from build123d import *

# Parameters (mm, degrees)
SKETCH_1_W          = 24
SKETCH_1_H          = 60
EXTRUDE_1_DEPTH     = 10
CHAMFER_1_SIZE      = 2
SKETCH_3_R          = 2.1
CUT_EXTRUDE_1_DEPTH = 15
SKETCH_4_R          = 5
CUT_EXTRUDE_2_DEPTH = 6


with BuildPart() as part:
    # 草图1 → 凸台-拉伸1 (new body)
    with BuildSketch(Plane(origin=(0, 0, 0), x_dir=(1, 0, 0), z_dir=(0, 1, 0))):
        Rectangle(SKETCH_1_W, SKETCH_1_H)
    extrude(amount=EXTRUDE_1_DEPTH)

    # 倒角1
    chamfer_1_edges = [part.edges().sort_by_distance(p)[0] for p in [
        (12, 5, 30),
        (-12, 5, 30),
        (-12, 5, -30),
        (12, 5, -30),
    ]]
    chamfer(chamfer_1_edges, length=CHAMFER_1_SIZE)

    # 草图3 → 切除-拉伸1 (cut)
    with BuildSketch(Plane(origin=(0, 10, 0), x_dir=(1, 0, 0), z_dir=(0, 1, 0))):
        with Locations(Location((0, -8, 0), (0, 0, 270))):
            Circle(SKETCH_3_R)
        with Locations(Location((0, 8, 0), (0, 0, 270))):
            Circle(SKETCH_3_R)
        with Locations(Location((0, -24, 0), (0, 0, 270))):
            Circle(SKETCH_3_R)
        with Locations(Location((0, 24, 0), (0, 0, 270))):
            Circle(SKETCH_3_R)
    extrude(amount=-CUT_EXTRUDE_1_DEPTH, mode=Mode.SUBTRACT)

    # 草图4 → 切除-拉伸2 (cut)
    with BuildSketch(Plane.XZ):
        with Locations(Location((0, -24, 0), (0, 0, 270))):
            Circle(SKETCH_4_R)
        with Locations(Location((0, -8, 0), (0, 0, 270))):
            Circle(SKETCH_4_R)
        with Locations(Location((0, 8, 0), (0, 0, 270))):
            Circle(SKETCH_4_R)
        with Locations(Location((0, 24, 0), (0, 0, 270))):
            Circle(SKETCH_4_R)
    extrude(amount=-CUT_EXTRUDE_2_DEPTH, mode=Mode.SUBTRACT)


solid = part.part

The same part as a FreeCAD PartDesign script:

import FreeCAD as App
import Part
import Sketcher

V = App.Vector


def edges_at(feature, points):
    """Names of the edges that pass closest to the given points."""
    edges = feature.Shape.Edges
    near = lambda p: min(range(len(edges)), key=lambda i: edges[i].distToShape(Part.Vertex(*p))[0])
    return sorted({f"Edge{near(p) + 1}" for p in points})


def add_polygon(sketch, points):
    """Adds a closed chain of lines whose ends are joined by coincident constraints."""
    first, n = sketch.GeometryCount, len(points)
    for a, b in zip(points, points[1:] + points[:1]):
        sketch.addGeometry(Part.LineSegment(App.Vector(*a, 0), App.Vector(*b, 0)), False)
    for i in range(n):
        sketch.addConstraint(Sketcher.Constraint("Coincident", first + i, 2, first + (i + 1) % n, 1))

doc = App.newDocument("Part")
body = doc.addObject("PartDesign::Body", "Body")

sketch1 = body.newObject("Sketcher::SketchObject", "Sketch")
sketch1.AttachmentSupport = (doc.getObject("XZ_Plane"), [""])
sketch1.MapMode = "FlatFace"
add_polygon(sketch1, [(-12, -30), (-12, 30), (12, 30), (12, -30)])
sketch1.addConstraint([
    Sketcher.Constraint("Vertical", 0),
    Sketcher.Constraint("Horizontal", 1),
    Sketcher.Constraint("Vertical", 2),
    Sketcher.Constraint("Horizontal", 3),
    Sketcher.Constraint("Symmetric", 0, 2, 2, 2, -1, 1),
    Sketcher.Constraint("DistanceX", 1, 1, 1, 2, 24.0),
    Sketcher.Constraint("DistanceY", 0, 1, 0, 2, 60.0),
])
pad1 = body.newObject("PartDesign::Pad", "Pad")
pad1.Profile = sketch1
pad1.Length = 10
pad1.Reversed = True
doc.recompute()

chamfer = body.newObject("PartDesign::Chamfer", "Chamfer")
chamfer.Base = (pad1, edges_at(pad1, [
    (12, 5, 30),
    (-12, 5, 30),
    (-12, 5, -30),
    (12, 5, -30),
]))
chamfer.Size = 2

sketch2 = body.newObject("Sketcher::SketchObject", "Sketch001")
sketch2.AttachmentSupport = (doc.getObject("XZ_Plane"), [""])
sketch2.MapMode = "FlatFace"
sketch2.AttachmentOffset = App.Placement(V(0, 0, -10), App.Rotation())
sketch2.addGeometry([
    Part.Circle(V(0, 8, 0), V(0, 0, 1), 2.1),
    Part.Circle(V(0, -8, 0), V(0, 0, 1), 2.1),
    Part.Circle(V(0, 24, 0), V(0, 0, 1), 2.1),
    Part.Circle(V(0, -24, 0), V(0, 0, 1), 2.1),
], False)
sketch2.addConstraint([
    Sketcher.Constraint("Equal", 0, 1),
    Sketcher.Constraint("Equal", 1, 2),
    Sketcher.Constraint("Equal", 2, 3),
    Sketcher.Constraint("Symmetric", 0, 3, 1, 3, -1, 1),
    Sketcher.Constraint("Symmetric", 2, 3, 3, 3, -1, 1),
    Sketcher.Constraint("PointOnObject", 0, 3, -2),
    Sketcher.Constraint("PointOnObject", 2, 3, -2),
    Sketcher.Constraint("Diameter", 0, 4.2),
    Sketcher.Constraint("DistanceY", -1, 1, 0, 3, 8.0),
    Sketcher.Constraint("DistanceY", -1, 1, 2, 3, 24.0),
])
pocket1 = body.newObject("PartDesign::Pocket", "Pocket")
pocket1.Profile = sketch2
pocket1.Length = 15
pocket1.Reversed = True

sketch3 = body.newObject("Sketcher::SketchObject", "Sketch002")
sketch3.AttachmentSupport = (doc.getObject("XZ_Plane"), [""])
sketch3.MapMode = "FlatFace"
sketch3.addGeometry([
    Part.Circle(V(0, -24, 0), V(0, 0, 1), 5),
    Part.Circle(V(0, -8, 0), V(0, 0, 1), 5),
    Part.Circle(V(0, 8, 0), V(0, 0, 1), 5),
    Part.Circle(V(0, 24, 0), V(0, 0, 1), 5),
], False)
sketch3.addConstraint([
    Sketcher.Constraint("Equal", 0, 1),
    Sketcher.Constraint("Equal", 1, 2),
    Sketcher.Constraint("Equal", 2, 3),
    Sketcher.Constraint("Symmetric", 1, 3, 2, 3, -1, 1),
    Sketcher.Constraint("Symmetric", 0, 3, 3, 3, -1, 1),
    Sketcher.Constraint("PointOnObject", 0, 3, -2),
    Sketcher.Constraint("PointOnObject", 1, 3, -2),
    Sketcher.Constraint("Diameter", 0, 10.0),
    Sketcher.Constraint("DistanceY", 0, 3, -1, 1, 24.0),
    Sketcher.Constraint("DistanceY", 1, 3, -1, 1, 8.0),
])
pocket2 = body.newObject("PartDesign::Pocket", "Pocket001")
pocket2.Profile = sketch3
pocket2.Length = 6

doc.recompute()
